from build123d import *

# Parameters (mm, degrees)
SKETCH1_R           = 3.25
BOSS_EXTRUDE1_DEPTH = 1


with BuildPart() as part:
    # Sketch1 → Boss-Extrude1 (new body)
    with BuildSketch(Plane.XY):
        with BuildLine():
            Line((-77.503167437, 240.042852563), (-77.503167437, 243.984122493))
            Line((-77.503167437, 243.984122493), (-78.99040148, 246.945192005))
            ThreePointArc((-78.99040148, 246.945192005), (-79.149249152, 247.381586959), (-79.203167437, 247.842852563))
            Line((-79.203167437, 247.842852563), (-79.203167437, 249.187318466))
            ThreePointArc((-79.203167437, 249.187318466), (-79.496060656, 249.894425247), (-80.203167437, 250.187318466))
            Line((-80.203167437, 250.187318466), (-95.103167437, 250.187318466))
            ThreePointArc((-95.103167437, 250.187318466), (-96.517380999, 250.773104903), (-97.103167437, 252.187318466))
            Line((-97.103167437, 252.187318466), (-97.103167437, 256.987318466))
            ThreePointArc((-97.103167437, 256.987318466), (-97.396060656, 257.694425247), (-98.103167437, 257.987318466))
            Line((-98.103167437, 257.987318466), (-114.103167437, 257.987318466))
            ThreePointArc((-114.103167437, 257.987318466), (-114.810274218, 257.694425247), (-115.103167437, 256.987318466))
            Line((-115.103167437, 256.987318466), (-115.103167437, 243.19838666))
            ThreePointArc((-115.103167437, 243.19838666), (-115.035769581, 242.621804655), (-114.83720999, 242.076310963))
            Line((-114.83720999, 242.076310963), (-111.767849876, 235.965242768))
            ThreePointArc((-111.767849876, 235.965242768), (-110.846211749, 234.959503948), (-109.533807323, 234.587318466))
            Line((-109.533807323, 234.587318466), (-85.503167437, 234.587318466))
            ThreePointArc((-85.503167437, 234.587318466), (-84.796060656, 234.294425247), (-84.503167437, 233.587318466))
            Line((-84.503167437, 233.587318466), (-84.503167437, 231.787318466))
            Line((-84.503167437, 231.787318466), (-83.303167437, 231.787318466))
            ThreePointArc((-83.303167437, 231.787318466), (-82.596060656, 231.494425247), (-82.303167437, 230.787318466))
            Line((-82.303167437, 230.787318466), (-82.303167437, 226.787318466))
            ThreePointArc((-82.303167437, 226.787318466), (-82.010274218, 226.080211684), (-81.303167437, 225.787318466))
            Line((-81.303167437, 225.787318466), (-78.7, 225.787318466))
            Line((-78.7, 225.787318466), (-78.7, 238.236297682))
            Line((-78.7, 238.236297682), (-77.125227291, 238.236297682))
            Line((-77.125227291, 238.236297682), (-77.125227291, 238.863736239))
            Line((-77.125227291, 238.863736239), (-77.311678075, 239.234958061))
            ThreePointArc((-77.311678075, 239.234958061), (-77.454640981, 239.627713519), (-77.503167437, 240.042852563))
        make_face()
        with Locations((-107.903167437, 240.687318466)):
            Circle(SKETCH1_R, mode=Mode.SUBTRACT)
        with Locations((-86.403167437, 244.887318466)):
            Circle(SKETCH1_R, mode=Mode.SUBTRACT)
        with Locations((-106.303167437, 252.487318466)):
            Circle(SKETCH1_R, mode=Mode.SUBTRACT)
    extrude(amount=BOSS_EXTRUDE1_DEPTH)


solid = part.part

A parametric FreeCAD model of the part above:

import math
import FreeCAD as App
import Part
import Sketcher

doc = App.newDocument("Part")
params = doc.addObject("Spreadsheet::Sheet", "Params")
for row, (alias, value) in enumerate([
    ("sketch1_radius", "2 mm"),
    ("sketch1_radius2", "1 mm"),
    ("sketch1_diameter", "6.5 mm"),
    ("sketch1_radius3", "2.5 mm"),
    ("sketch1_radius4", "1.8 mm"),
    ("pad1_length", "1 mm"),
], start=1):
    params.set(f"A{row}", alias)
    params.set(f"B{row}", "=" + value)
    params.setAlias(f"B{row}", alias)

body = doc.addObject("PartDesign::Body", "Body")

sketch1 = body.newObject("Sketcher::SketchObject", "Sketch")
sketch1.AttachmentSupport = (doc.getObject("XY_Plane"), [""])
sketch1.MapMode = "FlatFace"
sketch1.addGeometry([
    Part.LineSegment(App.Vector(-77.5, 240.04, 0), App.Vector(-77.5, 243.98, 0)),
    Part.LineSegment(App.Vector(-77.5, 243.98, 0), App.Vector(-78.99, 246.95, 0)),
    Part.ArcOfCircle(Part.Circle(App.Vector(-77.2, 247.84, 0), App.Vector(0, 0, 1), 2), math.radians(-180), math.radians(-153)),
    Part.LineSegment(App.Vector(-79.2, 247.84, 0), App.Vector(-79.2, 249.19, 0)),
    Part.ArcOfCircle(Part.Circle(App.Vector(-80.2, 249.19, 0), App.Vector(0, 0, 1), 1), math.radians(0), math.radians(90)),
    Part.LineSegment(App.Vector(-80.2, 250.19, 0), App.Vector(-95.1, 250.19, 0)),
    Part.ArcOfCircle(Part.Circle(App.Vector(-95.1, 252.19, 0), App.Vector(0, 0, 1), 2), math.radians(180), math.radians(270)),
    Part.LineSegment(App.Vector(-97.1, 252.19, 0), App.Vector(-97.1, 256.99, 0)),
    Part.ArcOfCircle(Part.Circle(App.Vector(-98.1, 256.99, 0), App.Vector(0, 0, 1), 1), math.radians(0), math.radians(90)),
    Part.LineSegment(App.Vector(-98.1, 257.99, 0), App.Vector(-114.1, 257.99, 0)),
    Part.ArcOfCircle(Part.Circle(App.Vector(-114.1, 256.99, 0), App.Vector(0, 0, 1), 1), math.radians(90), math.radians(180)),
    Part.LineSegment(App.Vector(-115.1, 256.99, 0), App.Vector(-115.1, 243.2, 0)),
    Part.ArcOfCircle(Part.Circle(App.Vector(-112.6, 243.2, 0), App.Vector(0, 0, 1), 2.5), math.radians(180), math.radians(207)),
    Part.LineSegment(App.Vector(-114.84, 242.08, 0), App.Vector(-111.77, 235.97, 0)),
    Part.ArcOfCircle(Part.Circle(App.Vector(-109.53, 237.09, 0), App.Vector(0, 0, 1), 2.5), math.radians(-153), math.radians(-90)),
    Part.LineSegment(App.Vector(-109.53, 234.59, 0), App.Vector(-85.5, 234.59, 0)),
    Part.ArcOfCircle(Part.Circle(App.Vector(-85.5, 233.59, 0), App.Vector(0, 0, 1), 1), math.radians(0), math.radians(90)),
    Part.LineSegment(App.Vector(-84.5, 233.59, 0), App.Vector(-84.5, 231.79, 0)),
    Part.LineSegment(App.Vector(-84.5, 231.79, 0), App.Vector(-83.3, 231.79, 0)),
    Part.ArcOfCircle(Part.Circle(App.Vector(-83.3, 230.79, 0), App.Vector(0, 0, 1), 1), math.radians(0), math.radians(90)),
    Part.LineSegment(App.Vector(-82.3, 230.79, 0), App.Vector(-82.3, 226.79, 0)),
    Part.ArcOfCircle(Part.Circle(App.Vector(-81.3, 226.79, 0), App.Vector(0, 0, 1), 1), math.radians(180), math.radians(270)),
    Part.LineSegment(App.Vector(-81.3, 225.79, 0), App.Vector(-78.7, 225.79, 0)),
    Part.LineSegment(App.Vector(-78.7, 225.79, 0), App.Vector(-78.7, 238.24, 0)),
    Part.LineSegment(App.Vector(-78.7, 238.24, 0), App.Vector(-77.13, 238.24, 0)),
    Part.LineSegment(App.Vector(-77.13, 238.24, 0), App.Vector(-77.13, 238.86, 0)),
    Part.LineSegment(App.Vector(-77.13, 238.86, 0), App.Vector(-77.31, 239.23, 0)),
    Part.ArcOfCircle(Part.Circle(App.Vector(-75.7, 240.04, 0), App.Vector(0, 0, 1), 1.8), math.radians(180), math.radians(207)),
    Part.Circle(App.Vector(-107.9, 240.69, 0), App.Vector(0, 0, 1), 3.25),
    Part.Circle(App.Vector(-86.4, 244.89, 0), App.Vector(0, 0, 1), 3.25),
    Part.Circle(App.Vector(-106.3, 252.49, 0), App.Vector(0, 0, 1), 3.25),
], False)
sketch1.addConstraint([
    Sketcher.Constraint("Coincident", 0, 2, 1, 1),
    Sketcher.Constraint("Tangent", 1, 2, 2, 2),
    Sketcher.Constraint("Tangent", 2, 1, 3, 1),
    Sketcher.Constraint("Tangent", 3, 2, 4, 1),
    Sketcher.Constraint("Tangent", 4, 2, 5, 1),
    Sketcher.Constraint("Tangent", 5, 2, 6, 2),
    Sketcher.Constraint("Tangent", 6, 1, 7, 1),
    Sketcher.Constraint("Tangent", 7, 2, 8, 1),
    Sketcher.Constraint("Tangent", 8, 2, 9, 1),
    Sketcher.Constraint("Tangent", 9, 2, 10, 1),
    Sketcher.Constraint("Tangent", 10, 2, 11, 1),
    Sketcher.Constraint("Tangent", 11, 2, 12, 1),
    Sketcher.Constraint("Tangent", 12, 2, 13, 1),
    Sketcher.Constraint("Tangent", 13, 2, 14, 1),
    Sketcher.Constraint("Tangent", 14, 2, 15, 1),
    Sketcher.Constraint("Tangent", 15, 2, 16, 2),
    Sketcher.Constraint("Tangent", 16, 1, 17, 1),
    Sketcher.Constraint("Coincident", 17, 2, 18, 1),
    Sketcher.Constraint("Tangent", 18, 2, 19, 2),
    Sketcher.Constraint("Tangent", 19, 1, 20, 1),
    Sketcher.Constraint("Tangent", 20, 2, 21, 1),
    Sketcher.Constraint("Tangent", 21, 2, 22, 1),
    Sketcher.Constraint("Coincident", 22, 2, 23, 1),
    Sketcher.Constraint("Coincident", 23, 2, 24, 1),
    Sketcher.Constraint("Coincident", 24, 2, 25, 1),
    Sketcher.Constraint("Coincident", 25, 2, 26, 1),
    Sketcher.Constraint("Tangent", 26, 2, 27, 2),
    Sketcher.Constraint("Tangent", 27, 1, 0, 1),
    Sketcher.Constraint("Vertical", 0),
    Sketcher.Constraint("Vertical", 3),
    Sketcher.Constraint("Horizontal", 5),
    Sketcher.Constraint("Vertical", 7),
    Sketcher.Constraint("Horizontal", 9),
    Sketcher.Constraint("Vertical", 11),
    Sketcher.Constraint("Horizontal", 15),
    Sketcher.Constraint("Vertical", 17),
    Sketcher.Constraint("Horizontal", 18),
    Sketcher.Constraint("Vertical", 20),
    Sketcher.Constraint("Horizontal", 22),
    Sketcher.Constraint("Vertical", 23),
    Sketcher.Constraint("Horizontal", 24),
    Sketcher.Constraint("Vertical", 25),
    Sketcher.Constraint("Equal", 2, 6),
    Sketcher.Constraint("Equal", 4, 8),
    Sketcher.Constraint("Equal", 8, 10),
    Sketcher.Constraint("Equal", 12, 14),
    Sketcher.Constraint("Equal", 10, 16),
    Sketcher.Constraint("Equal", 16, 19),
    Sketcher.Constraint("Equal", 19, 21),
    Sketcher.Constraint("Equal", 28, 29),
    Sketcher.Constraint("Equal", 29, 30),
    Sketcher.Constraint("Parallel", 1, 13),
    Sketcher.Constraint("Parallel", 13, 26),
    Sketcher.Constraint("Radius", 2, 2.0),
    Sketcher.Constraint("Radius", 4, 1.0),
    Sketcher.Constraint("Diameter", 28, 6.5),
    Sketcher.Constraint("Radius", 12, 2.5),
    Sketcher.Constraint("Radius", 27, 1.8),
    Sketcher.Constraint("DistanceX", 9, 2, 9, 1, 16.0),
    Sketcher.Constraint("DistanceY", 20, 2, 20, 1, 4.0),
    Sketcher.Constraint("DistanceX", 5, 2, 5, 1, 14.9),
    Sketcher.Constraint("DistanceX", 18, 1, 18, 2, 1.2),
    Sketcher.Constraint("DistanceY", 7, 1, 7, 2, 4.8),
    Sketcher.Constraint("DistanceY", 17, 2, 17, 1, 1.8),
    Sketcher.Constraint("DistanceX", 16, 3, 0, 2, 8.0),
    Sketcher.Constraint("DistanceX", 22, 2, -1, 1, 78.7),
    Sketcher.Constraint("DistanceY", 14, 3, 10, 3, 19.9),
    Sketcher.Constraint("DistanceX", 16, 3, 4, 3, 5.3),
    Sketcher.Constraint("DistanceY", 27, 3, 2, 3, 7.8),
    Sketcher.Constraint("DistanceY", 14, 3, 28, 3, 3.6),
    Sketcher.Constraint("DistanceX", 12, 3, 28, 3, 4.7),
    Sketcher.Constraint("DistanceX", 29, 3, 4, 3, 6.2),
    Sketcher.Constraint("DistanceY", 29, 3, 4, 3, 4.3),
    Sketcher.Constraint("DistanceX", 10, 3, 30, 3, 7.8),
    Sketcher.Constraint("DistanceY", 30, 3, 10, 3, 4.5),
    Sketcher.Constraint("DistanceX", 15, 1, 15, 2, 24.03064),
    Sketcher.Constraint("DistanceY", 0, 1, 0, 2, 3.94127),
    Sketcher.Constraint("DistanceY", 23, 1, 23, 2, 12.448979),
    Sketcher.Constraint("DistanceY", 25, 1, 25, 2, 0.627439),
    Sketcher.Constraint("DistanceX", 1, 2, -1, 1, 78.990401),
    Sketcher.Constraint("DistanceX", 24, 1, 24, 2, 1.574773),
    Sketcher.Constraint("DistanceY", -1, 1, 4, 3, 249.187318),
])
sketch1.setExpression("Constraints[53]", "Params.sketch1_radius")
sketch1.setExpression("Constraints[54]", "Params.sketch1_radius2")
sketch1.setExpression("Constraints[55]", "Params.sketch1_diameter")
sketch1.setExpression("Constraints[56]", "Params.sketch1_radius3")
sketch1.setExpression("Constraints[57]", "Params.sketch1_radius4")
pad1 = body.newObject("PartDesign::Pad", "Pad")
pad1.Profile = sketch1
pad1.setExpression("Length", "Params.pad1_length")

doc.recompute()
